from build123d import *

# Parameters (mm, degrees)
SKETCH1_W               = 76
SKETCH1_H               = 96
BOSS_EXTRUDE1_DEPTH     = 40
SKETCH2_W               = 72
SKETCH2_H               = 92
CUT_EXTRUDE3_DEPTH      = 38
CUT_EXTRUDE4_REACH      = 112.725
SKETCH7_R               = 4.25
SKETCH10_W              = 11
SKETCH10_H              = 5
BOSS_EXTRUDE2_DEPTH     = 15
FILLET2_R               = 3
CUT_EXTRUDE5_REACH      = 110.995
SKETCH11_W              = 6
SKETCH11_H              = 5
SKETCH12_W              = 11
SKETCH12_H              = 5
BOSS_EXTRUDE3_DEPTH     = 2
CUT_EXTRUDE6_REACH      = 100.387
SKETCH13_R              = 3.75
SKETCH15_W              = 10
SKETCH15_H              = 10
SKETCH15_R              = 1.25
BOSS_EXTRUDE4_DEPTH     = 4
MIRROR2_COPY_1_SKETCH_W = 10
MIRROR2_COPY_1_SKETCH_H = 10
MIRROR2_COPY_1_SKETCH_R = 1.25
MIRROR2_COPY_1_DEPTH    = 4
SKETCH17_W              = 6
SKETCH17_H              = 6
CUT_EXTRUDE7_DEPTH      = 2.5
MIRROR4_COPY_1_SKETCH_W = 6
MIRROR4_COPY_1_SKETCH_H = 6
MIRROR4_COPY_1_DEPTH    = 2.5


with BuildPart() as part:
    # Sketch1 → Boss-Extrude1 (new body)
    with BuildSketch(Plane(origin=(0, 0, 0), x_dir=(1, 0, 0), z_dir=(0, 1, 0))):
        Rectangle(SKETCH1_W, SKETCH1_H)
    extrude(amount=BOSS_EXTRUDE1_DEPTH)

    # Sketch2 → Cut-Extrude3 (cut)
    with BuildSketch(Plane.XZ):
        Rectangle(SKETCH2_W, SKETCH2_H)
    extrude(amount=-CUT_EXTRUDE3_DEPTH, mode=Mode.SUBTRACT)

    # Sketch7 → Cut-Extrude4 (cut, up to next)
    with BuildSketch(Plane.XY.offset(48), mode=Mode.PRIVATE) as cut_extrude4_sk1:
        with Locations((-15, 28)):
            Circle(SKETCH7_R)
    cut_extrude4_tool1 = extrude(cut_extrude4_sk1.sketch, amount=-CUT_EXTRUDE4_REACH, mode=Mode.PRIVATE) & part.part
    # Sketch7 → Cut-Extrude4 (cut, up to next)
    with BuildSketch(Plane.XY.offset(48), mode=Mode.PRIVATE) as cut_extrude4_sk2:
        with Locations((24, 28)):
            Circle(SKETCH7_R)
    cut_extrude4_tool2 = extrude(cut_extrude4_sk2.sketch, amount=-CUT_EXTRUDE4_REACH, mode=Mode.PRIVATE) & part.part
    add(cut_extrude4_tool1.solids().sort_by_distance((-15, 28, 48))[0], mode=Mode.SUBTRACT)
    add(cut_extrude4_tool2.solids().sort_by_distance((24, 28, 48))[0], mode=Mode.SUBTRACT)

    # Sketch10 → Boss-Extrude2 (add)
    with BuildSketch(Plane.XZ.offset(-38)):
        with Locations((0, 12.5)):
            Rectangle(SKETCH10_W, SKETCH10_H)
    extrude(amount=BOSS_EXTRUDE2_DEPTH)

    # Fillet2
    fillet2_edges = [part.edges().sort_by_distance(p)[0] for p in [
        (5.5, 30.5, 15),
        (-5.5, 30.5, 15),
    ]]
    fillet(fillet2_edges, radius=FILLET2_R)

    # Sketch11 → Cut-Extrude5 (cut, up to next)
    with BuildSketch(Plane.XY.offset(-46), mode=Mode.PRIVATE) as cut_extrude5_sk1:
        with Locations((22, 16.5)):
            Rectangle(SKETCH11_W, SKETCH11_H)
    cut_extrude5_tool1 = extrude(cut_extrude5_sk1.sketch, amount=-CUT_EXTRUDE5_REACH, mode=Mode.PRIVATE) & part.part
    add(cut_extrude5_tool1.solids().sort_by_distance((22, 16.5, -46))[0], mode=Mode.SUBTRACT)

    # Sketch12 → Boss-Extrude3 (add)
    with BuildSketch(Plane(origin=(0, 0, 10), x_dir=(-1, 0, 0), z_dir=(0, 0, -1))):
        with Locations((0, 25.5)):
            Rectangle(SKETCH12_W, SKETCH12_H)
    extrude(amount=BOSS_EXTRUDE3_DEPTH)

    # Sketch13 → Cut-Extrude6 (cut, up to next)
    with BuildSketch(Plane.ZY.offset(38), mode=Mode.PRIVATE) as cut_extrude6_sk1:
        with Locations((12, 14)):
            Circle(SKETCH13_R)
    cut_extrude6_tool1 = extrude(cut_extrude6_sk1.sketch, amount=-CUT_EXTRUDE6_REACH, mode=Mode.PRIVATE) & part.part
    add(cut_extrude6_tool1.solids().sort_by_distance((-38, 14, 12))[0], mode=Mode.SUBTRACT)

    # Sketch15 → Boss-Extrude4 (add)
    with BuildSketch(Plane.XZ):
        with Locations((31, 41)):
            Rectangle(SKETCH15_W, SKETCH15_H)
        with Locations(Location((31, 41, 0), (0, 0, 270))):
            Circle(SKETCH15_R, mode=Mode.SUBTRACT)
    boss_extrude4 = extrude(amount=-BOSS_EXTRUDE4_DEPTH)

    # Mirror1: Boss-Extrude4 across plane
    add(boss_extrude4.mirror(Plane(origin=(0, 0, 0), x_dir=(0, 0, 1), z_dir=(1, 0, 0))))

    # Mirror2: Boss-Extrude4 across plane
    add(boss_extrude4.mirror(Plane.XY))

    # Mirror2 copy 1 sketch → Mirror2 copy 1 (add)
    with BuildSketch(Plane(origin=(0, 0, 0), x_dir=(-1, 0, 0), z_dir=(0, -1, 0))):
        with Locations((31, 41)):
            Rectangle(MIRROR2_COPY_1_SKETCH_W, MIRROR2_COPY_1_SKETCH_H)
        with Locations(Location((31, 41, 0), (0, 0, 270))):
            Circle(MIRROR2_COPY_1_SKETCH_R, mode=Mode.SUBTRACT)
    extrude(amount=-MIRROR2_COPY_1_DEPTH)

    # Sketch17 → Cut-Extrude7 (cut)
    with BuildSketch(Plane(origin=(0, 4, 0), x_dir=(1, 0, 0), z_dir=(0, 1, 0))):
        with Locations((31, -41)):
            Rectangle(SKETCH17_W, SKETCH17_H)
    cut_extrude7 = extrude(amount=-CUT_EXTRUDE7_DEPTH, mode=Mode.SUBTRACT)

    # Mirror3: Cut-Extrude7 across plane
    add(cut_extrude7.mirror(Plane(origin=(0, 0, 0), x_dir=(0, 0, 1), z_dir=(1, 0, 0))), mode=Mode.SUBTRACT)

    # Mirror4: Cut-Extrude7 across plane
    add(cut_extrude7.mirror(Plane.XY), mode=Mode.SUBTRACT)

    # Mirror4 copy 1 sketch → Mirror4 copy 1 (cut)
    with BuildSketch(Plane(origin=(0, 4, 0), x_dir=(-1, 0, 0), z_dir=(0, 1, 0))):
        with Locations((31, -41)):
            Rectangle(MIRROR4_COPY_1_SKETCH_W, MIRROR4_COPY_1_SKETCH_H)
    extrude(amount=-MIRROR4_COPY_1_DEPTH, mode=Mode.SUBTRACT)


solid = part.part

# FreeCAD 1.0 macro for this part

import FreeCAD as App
import Part
import Sketcher
Q = App.Units.Quantity


def edges_at(feature, points):
    """Names of the edges that pass closest to the given points."""
    edges = feature.Shape.Edges
    near = lambda p: min(range(len(edges)), key=lambda i: edges[i].distToShape(Part.Vertex(*p))[0])
    return sorted({f"Edge{near(p) + 1}" for p in points})

doc = App.newDocument("Part")
params = doc.addObject("Spreadsheet::Sheet", "Params")
for row, (alias, value) in enumerate([
    ("sketch1_width", "76 mm"),
    ("sketch1_height", "96 mm"),
    ("pad1_length", "40 mm"),
    ("sketch2_width", "72 mm"),
    ("sketch2_height", "92 mm"),
    ("pocket1_length", "38 mm"),
    ("sketch3_diameter", "8.5 mm"),
    ("sketch4_diameter", "8.5 mm"),
    ("sketch5_width", "11 mm"),
    ("sketch5_height", "5 mm"),
    ("pad2_length", "15 mm"),
    ("fillet_radius", "3 mm"),
    ("sketch6_width", "6 mm"),
    ("sketch6_height", "5 mm"),
    ("sketch7_width", "11 mm"),
    ("sketch7_height", "5 mm"),
    ("pad3_length", "2 mm"),
    ("sketch8_diameter", "7.5 mm"),
    ("sketch9_diameter", "2.5 mm"),
    ("sketch9_width", "10 mm"),
    ("pad4_length", "4 mm"),
    ("sketch10_diameter", "2.5 mm"),
    ("sketch10_width", "10 mm"),
    ("pad5_length", "4 mm"),
    ("sketch11_width", "6 mm"),
    ("pocket6_length", "2.5 mm"),
    ("sketch12_width", "6 mm"),
    ("pocket7_length", "2.5 mm"),
], start=1):
    params.set(f"A{row}", alias)
    params.set(f"B{row}", "=" + value)
    params.setAlias(f"B{row}", alias)

body = doc.addObject("PartDesign::Body", "Body")

# Sketch on XZ plane
sketch1 = body.newObject("Sketcher::SketchObject", "Sketch")
sketch1.AttachmentSupport = (doc.getObject("XZ_Plane"), [""])
sketch1.MapMode = "FlatFace"
sketch1.addGeometry([
    Part.LineSegment(App.Vector(-38, -48, 0), App.Vector(-38, 48, 0)),
    Part.LineSegment(App.Vector(-38, 48, 0), App.Vector(38, 48, 0)),
    Part.LineSegment(App.Vector(38, 48, 0), App.Vector(38, -48, 0)),
    Part.LineSegment(App.Vector(38, -48, 0), App.Vector(-38, -48, 0)),
], False)
sketch1.addConstraint([
    Sketcher.Constraint("Coincident", 0, 2, 1, 1),
    Sketcher.Constraint("Coincident", 1, 2, 2, 1),
    Sketcher.Constraint("Coincident", 2, 2, 3, 1),
    Sketcher.Constraint("Coincident", 3, 2, 0, 1),
    Sketcher.Constraint("Vertical", 0),
    Sketcher.Constraint("Horizontal", 1),
    Sketcher.Constraint("Vertical", 2),
    Sketcher.Constraint("Horizontal", 3),
    Sketcher.Constraint("Symmetric", 0, 2, 2, 2, -1, 1),
    Sketcher.Constraint("DistanceX", 1, 1, 1, 2, Q("76 mm")),
    Sketcher.Constraint("DistanceY", 0, 1, 0, 2, Q("96 mm")),
])
sketch1.setExpression("Constraints[9]", "Params.sketch1_width")
sketch1.setExpression("Constraints[10]", "Params.sketch1_height")
pad1 = body.newObject("PartDesign::Pad", "Pad")
pad1.Profile = sketch1
pad1.setExpression("Length", "Params.pad1_length")
pad1.Reversed = True

# Sketch on XZ plane
sketch2 = body.newObject("Sketcher::SketchObject", "Sketch001")
sketch2.AttachmentSupport = (doc.getObject("XZ_Plane"), [""])
sketch2.MapMode = "FlatFace"
sketch2.addGeometry([
    Part.LineSegment(App.Vector(-36, 46, 0), App.Vector(-36, -46, 0)),
    Part.LineSegment(App.Vector(-36, -46, 0), App.Vector(36, -46, 0)),
    Part.LineSegment(App.Vector(36, -46, 0), App.Vector(36, 46, 0)),
    Part.LineSegment(App.Vector(36, 46, 0), App.Vector(-36, 46, 0)),
], False)
sketch2.addConstraint([
    Sketcher.Constraint("Coincident", 0, 2, 1, 1),
    Sketcher.Constraint("Coincident", 1, 2, 2, 1),
    Sketcher.Constraint("Coincident", 2, 2, 3, 1),
    Sketcher.Constraint("Coincident", 3, 2, 0, 1),
    Sketcher.Constraint("Vertical", 0),
    Sketcher.Constraint("Horizontal", 1),
    Sketcher.Constraint("Vertical", 2),
    Sketcher.Constraint("Horizontal", 3),
    Sketcher.Constraint("Symmetric", 0, 2, 2, 2, -1, 1),
    Sketcher.Constraint("DistanceX", 1, 1, 1, 2, Q("72 mm")),
    Sketcher.Constraint("DistanceY", 0, 2, 0, 1, Q("92 mm")),
])
sketch2.setExpression("Constraints[9]", "Params.sketch2_width")
sketch2.setExpression("Constraints[10]", "Params.sketch2_height")
pocket1 = body.newObject("PartDesign::Pocket", "Pocket")
pocket1.Profile = sketch2
pocket1.setExpression("Length", "Params.pocket1_length")

# Sketch on XY plane
sketch3 = body.newObject("Sketcher::SketchObject", "Sketch002")
sketch3.AttachmentSupport = (doc.getObject("XY_Plane"), [""])
sketch3.MapMode = "FlatFace"
sketch3.AttachmentOffset = App.Placement(App.Vector(0, 0, 48), App.Rotation())
sketch3.addGeometry(Part.Circle(App.Vector(-15, 28, 0), App.Vector(0, 0, 1), 4.2), False)
sketch3.addConstraint([
    Sketcher.Constraint("Diameter", 0, Q("8.5 mm")),
    Sketcher.Constraint("DistanceX", 0, 3, -1, 1, Q("15 mm")),
    Sketcher.Constraint("DistanceY", -1, 1, 0, 3, Q("28 mm")),
])
sketch3.setExpression("Constraints[0]", "Params.sketch3_diameter")
pocket2 = body.newObject("PartDesign::Pocket", "Pocket001")
pocket2.Profile = sketch3
pocket2.Type = "UpToFirst"

# Sketch on XY plane
sketch4 = body.newObject("Sketcher::SketchObject", "Sketch003")
sketch4.AttachmentSupport = (doc.getObject("XY_Plane"), [""])
sketch4.MapMode = "FlatFace"
sketch4.AttachmentOffset = App.Placement(App.Vector(0, 0, 48), App.Rotation())
sketch4.addGeometry(Part.Circle(App.Vector(24, 28, 0), App.Vector(0, 0, 1), 4.2), False)
sketch4.addConstraint([
    Sketcher.Constraint("Diameter", 0, Q("8.5 mm")),
    Sketcher.Constraint("DistanceX", -1, 1, 0, 3, Q("24 mm")),
    Sketcher.Constraint("DistanceY", -1, 1, 0, 3, Q("28 mm")),
])
sketch4.setExpression("Constraints[0]", "Params.sketch4_diameter")
pocket3 = body.newObject("PartDesign::Pocket", "Pocket002")
pocket3.Profile = sketch4
pocket3.Type = "UpToFirst"

# Sketch on XZ plane
sketch5 = body.newObject("Sketcher::SketchObject", "Sketch004")
sketch5.AttachmentSupport = (doc.getObject("XZ_Plane"), [""])
sketch5.MapMode = "FlatFace"
sketch5.AttachmentOffset = App.Placement(App.Vector(0, 0, -38), App.Rotation())
sketch5.addGeometry([
    Part.LineSegment(App.Vector(-6, 15, 0), App.Vector(-6, 10, 0)),
    Part.LineSegment(App.Vector(-6, 10, 0), App.Vector(6, 10, 0)),
    Part.LineSegment(App.Vector(6, 10, 0), App.Vector(6, 15, 0)),
    Part.LineSegment(App.Vector(6, 15, 0), App.Vector(-6, 15, 0)),
], False)
sketch5.addConstraint([
    Sketcher.Constraint("Coincident", 0, 2, 1, 1),
    Sketcher.Constraint("Coincident", 1, 2, 2, 1),
    Sketcher.Constraint("Coincident", 2, 2, 3, 1),
    Sketcher.Constraint("Coincident", 3, 2, 0, 1),
    Sketcher.Constraint("Vertical", 0),
    Sketcher.Constraint("Horizontal", 1),
    Sketcher.Constraint("Vertical", 2),
    Sketcher.Constraint("Horizontal", 3),
    Sketcher.Constraint("DistanceX", 1, 1, 1, 2, Q("11 mm")),
    Sketcher.Constraint("DistanceY", 0, 2, 0, 1, Q("5 mm")),
    Sketcher.Constraint("DistanceY", -1, 1, 0, 2, Q("10 mm")),
    Sketcher.Constraint("DistanceX", 0, 2, -1, 1, Q("5.5 mm")),
])
sketch5.setExpression("Constraints[8]", "Params.sketch5_width")
sketch5.setExpression("Constraints[9]", "Params.sketch5_height")
pad2 = body.newObject("PartDesign::Pad", "Pad001")
pad2.Profile = sketch5
pad2.setExpression("Length", "Params.pad2_length")
doc.recompute()

fillet = body.newObject("PartDesign::Fillet", "Fillet")
fillet.Base = (pad2, edges_at(pad2, [(5.5, 30.5, 15), (-5.5, 30.5, 15)]))
fillet.setExpression("Radius", "Params.fillet_radius")

# Sketch on XY plane
sketch6 = body.newObject("Sketcher::SketchObject", "Sketch005")
sketch6.AttachmentSupport = (doc.getObject("XY_Plane"), [""])
sketch6.MapMode = "FlatFace"
sketch6.AttachmentOffset = App.Placement(App.Vector(0, 0, -46), App.Rotation())
sketch6.addGeometry([
    Part.LineSegment(App.Vector(19, 19, 0), App.Vector(19, 14, 0)),
    Part.LineSegment(App.Vector(19, 14, 0), App.Vector(25, 14, 0)),
    Part.LineSegment(App.Vector(25, 14, 0), App.Vector(25, 19, 0)),
    Part.LineSegment(App.Vector(25, 19, 0), App.Vector(19, 19, 0)),
], False)
sketch6.addConstraint([
    Sketcher.Constraint("Coincident", 0, 2, 1, 1),
    Sketcher.Constraint("Coincident", 1, 2, 2, 1),
    Sketcher.Constraint("Coincident", 2, 2, 3, 1),
    Sketcher.Constraint("Coincident", 3, 2, 0, 1),
    Sketcher.Constraint("Vertical", 0),
    Sketcher.Constraint("Horizontal", 1),
    Sketcher.Constraint("Vertical", 2),
    Sketcher.Constraint("Horizontal", 3),
    Sketcher.Constraint("DistanceX", 1, 1, 1, 2, Q("6 mm")),
    Sketcher.Constraint("DistanceY", 0, 2, 0, 1, Q("5 mm")),
    Sketcher.Constraint("DistanceX", -1, 1, 0, 2, Q("19 mm")),
    Sketcher.Constraint("DistanceY", -1, 1, 0, 2, Q("14 mm")),
])
sketch6.setExpression("Constraints[8]", "Params.sketch6_width")
sketch6.setExpression("Constraints[9]", "Params.sketch6_height")
pocket4 = body.newObject("PartDesign::Pocket", "Pocket003")
pocket4.Profile = sketch6
pocket4.Type = "UpToFirst"

# Sketch on XY plane
sketch7 = body.newObject("Sketcher::SketchObject", "Sketch006")
sketch7.AttachmentSupport = (doc.getObject("XY_Plane"), [""])
sketch7.MapMode = "FlatFace"
sketch7.AttachmentOffset = App.Placement(App.Vector(0, 0, 10), App.Rotation())
sketch7.addGeometry([
    Part.LineSegment(App.Vector(6, 28, 0), App.Vector(6, 23, 0)),
    Part.LineSegment(App.Vector(6, 23, 0), App.Vector(-6, 23, 0)),
    Part.LineSegment(App.Vector(-6, 23, 0), App.Vector(-6, 28, 0)),
    Part.LineSegment(App.Vector(-6, 28, 0), App.Vector(6, 28, 0)),
], False)
sketch7.addConstraint([
    Sketcher.Constraint("Coincident", 0, 2, 1, 1),
    Sketcher.Constraint("Coincident", 1, 2, 2, 1),
    Sketcher.Constraint("Coincident", 2, 2, 3, 1),
    Sketcher.Constraint("Coincident", 3, 2, 0, 1),
    Sketcher.Constraint("Vertical", 0),
    Sketcher.Constraint("Horizontal", 1),
    Sketcher.Constraint("Vertical", 2),
    Sketcher.Constraint("Horizontal", 3),
    Sketcher.Constraint("DistanceX", 1, 2, 1, 1, Q("11 mm")),
    Sketcher.Constraint("DistanceY", 0, 2, 0, 1, Q("5 mm")),
    Sketcher.Constraint("DistanceY", -1, 1, 0, 2, Q("23 mm")),
    Sketcher.Constraint("DistanceX", -1, 1, 0, 2, Q("5.5 mm")),
])
sketch7.setExpression("Constraints[8]", "Params.sketch7_width")
sketch7.setExpression("Constraints[9]", "Params.sketch7_height")
pad3 = body.newObject("PartDesign::Pad", "Pad002")
pad3.Profile = sketch7
pad3.setExpression("Length", "Params.pad3_length")
pad3.Reversed = True

# Sketch on YZ plane
sketch8 = body.newObject("Sketcher::SketchObject", "Sketch007")
sketch8.AttachmentSupport = (doc.getObject("YZ_Plane"), [""])
sketch8.MapMode = "FlatFace"
sketch8.AttachmentOffset = App.Placement(App.Vector(0, 0, -38), App.Rotation())
sketch8.addGeometry(Part.Circle(App.Vector(14, 12, 0), App.Vector(0, 0, 1), 3.8), False)
sketch8.addConstraint([
    Sketcher.Constraint("Diameter", 0, Q("7.5 mm")),
    Sketcher.Constraint("DistanceX", -1, 1, 0, 3, Q("14 mm")),
    Sketcher.Constraint("DistanceY", -1, 1, 0, 3, Q("12 mm")),
])
sketch8.setExpression("Constraints[0]", "Params.sketch8_diameter")
pocket5 = body.newObject("PartDesign::Pocket", "Pocket004")
pocket5.Profile = sketch8
pocket5.Type = "UpToFirst"
pocket5.Reversed = True

# Sketch on XZ plane
sketch9 = body.newObject("Sketcher::SketchObject", "Sketch008")
sketch9.AttachmentSupport = (doc.getObject("XZ_Plane"), [""])
sketch9.MapMode = "FlatFace"
sketch9.addGeometry([
    Part.LineSegment(App.Vector(26, 46, 0), App.Vector(26, 36, 0)),  # 0
    Part.LineSegment(App.Vector(26, 36, 0), App.Vector(36, 36, 0)),  # 1
    Part.LineSegment(App.Vector(36, 36, 0), App.Vector(36, 46, 0)),  # 2
    Part.LineSegment(App.Vector(36, 46, 0), App.Vector(26, 46, 0)),  # 3
    Part.Circle(App.Vector(31, 41, 0), App.Vector(0, 0, 1), 1.2),  # 4
], False)
sketch9.addConstraint([
    Sketcher.Constraint("Coincident", 0, 2, 1, 1),
    Sketcher.Constraint("Coincident", 1, 2, 2, 1),
    Sketcher.Constraint("Coincident", 2, 2, 3, 1),
    Sketcher.Constraint("Coincident", 3, 2, 0, 1),
    Sketcher.Constraint("Vertical", 0),
    Sketcher.Constraint("Horizontal", 1),
    Sketcher.Constraint("Vertical", 2),
    Sketcher.Constraint("Horizontal", 3),
    Sketcher.Constraint("Equal", 3, 0),
    Sketcher.Constraint("Diameter", 4, Q("2.5 mm")),
    Sketcher.Constraint("DistanceX", 1, 1, 1, 2, Q("10 mm")),
    Sketcher.Constraint("DistanceX", -1, 1, 4, 3, Q("31 mm")),
    Sketcher.Constraint("DistanceY", -1, 1, 4, 3, Q("41 mm")),
    Sketcher.Constraint("DistanceX", -1, 1, 0, 2, Q("26 mm")),
    Sketcher.Constraint("DistanceY", -1, 1, 0, 2, Q("36 mm")),
])
sketch9.setExpression("Constraints[9]", "Params.sketch9_diameter")
sketch9.setExpression("Constraints[10]", "Params.sketch9_width")
pad4 = body.newObject("PartDesign::Pad", "Pad003")
pad4.Profile = sketch9
pad4.setExpression("Length", "Params.pad4_length")
pad4.Reversed = True
doc.recompute()

mirrored = body.newObject("PartDesign::Mirrored", "Mirrored")
mirrored.Originals = [pad4]
mirrored.MirrorPlane = (doc.getObject("YZ_Plane"), [""])
body.Tip = mirrored
doc.recompute()

mirrored2 = body.newObject("PartDesign::Mirrored", "Mirrored001")
mirrored2.Originals = [pad4]
mirrored2.MirrorPlane = (doc.getObject("XY_Plane"), [""])
body.Tip = mirrored2

# Sketch on XZ plane
sketch10 = body.newObject("Sketcher::SketchObject", "Sketch009")
sketch10.AttachmentSupport = (doc.getObject("XZ_Plane"), [""])
sketch10.MapMode = "FlatFace"
sketch10.addGeometry([
    Part.LineSegment(App.Vector(-26, -46, 0), App.Vector(-26, -36, 0)),  # 0
    Part.LineSegment(App.Vector(-26, -36, 0), App.Vector(-36, -36, 0)),  # 1
    Part.LineSegment(App.Vector(-36, -36, 0), App.Vector(-36, -46, 0)),  # 2
    Part.LineSegment(App.Vector(-36, -46, 0), App.Vector(-26, -46, 0)),  # 3
    Part.Circle(App.Vector(-31, -41, 0), App.Vector(0, 0, 1), 1.2),  # 4
], False)
sketch10.addConstraint([
    Sketcher.Constraint("Coincident", 0, 2, 1, 1),
    Sketcher.Constraint("Coincident", 1, 2, 2, 1),
    Sketcher.Constraint("Coincident", 2, 2, 3, 1),
    Sketcher.Constraint("Coincident", 3, 2, 0, 1),
    Sketcher.Constraint("Vertical", 0),
    Sketcher.Constraint("Horizontal", 1),
    Sketcher.Constraint("Vertical", 2),
    Sketcher.Constraint("Horizontal", 3),
    Sketcher.Constraint("Equal", 3, 0),
    Sketcher.Constraint("Diameter", 4, Q("2.5 mm")),
    Sketcher.Constraint("DistanceX", 1, 2, 1, 1, Q("10 mm")),
    Sketcher.Constraint("DistanceX", 4, 3, -1, 1, Q("31 mm")),
    Sketcher.Constraint("DistanceY", 4, 3, -1, 1, Q("41 mm")),
    Sketcher.Constraint("DistanceX", 0, 2, -1, 1, Q("26 mm")),
    Sketcher.Constraint("DistanceY", 0, 2, -1, 1, Q("36 mm")),
])
sketch10.setExpression("Constraints[9]", "Params.sketch10_diameter")
sketch10.setExpression("Constraints[10]", "Params.sketch10_width")
pad5 = body.newObject("PartDesign::Pad", "Pad004")
pad5.Profile = sketch10
pad5.setExpression("Length", "Params.pad5_length")
pad5.Reversed = True

# Sketch on XZ plane
sketch11 = body.newObject("Sketcher::SketchObject", "Sketch010")
sketch11.AttachmentSupport = (doc.getObject("XZ_Plane"), [""])
sketch11.MapMode = "FlatFace"
sketch11.AttachmentOffset = App.Placement(App.Vector(0, 0, -4), App.Rotation())
sketch11.addGeometry([
    Part.LineSegment(App.Vector(28, 38, 0), App.Vector(28, 44, 0)),
    Part.LineSegment(App.Vector(28, 44, 0), App.Vector(34, 44, 0)),
    Part.LineSegment(App.Vector(34, 44, 0), App.Vector(34, 38, 0)),
    Part.LineSegment(App.Vector(34, 38, 0), App.Vector(28, 38, 0)),
], False)
sketch11.addConstraint([
    Sketcher.Constraint("Coincident", 0, 2, 1, 1),
    Sketcher.Constraint("Coincident", 1, 2, 2, 1),
    Sketcher.Constraint("Coincident", 2, 2, 3, 1),
    Sketcher.Constraint("Coincident", 3, 2, 0, 1),
    Sketcher.Constraint("Vertical", 0),
    Sketcher.Constraint("Horizontal", 1),
    Sketcher.Constraint("Vertical", 2),
    Sketcher.Constraint("Horizontal", 3),
    Sketcher.Constraint("Equal", 3, 0),
    Sketcher.Constraint("DistanceX", 1, 1, 1, 2, Q("6 mm")),
    Sketcher.Constraint("DistanceX", -1, 1, 0, 2, Q("28 mm")),
    Sketcher.Constraint("DistanceY", -1, 1, 0, 2, Q("44 mm")),
])
sketch11.setExpression("Constraints[9]", "Params.sketch11_width")
pocket6 = body.newObject("PartDesign::Pocket", "Pocket005")
pocket6.Profile = sketch11
pocket6.setExpression("Length", "Params.pocket6_length")
pocket6.Reversed = True
doc.recompute()

mirrored3 = body.newObject("PartDesign::Mirrored", "Mirrored002")
mirrored3.Originals = [pocket6]
mirrored3.MirrorPlane = (doc.getObject("YZ_Plane"), [""])
body.Tip = mirrored3
doc.recompute()

mirrored4 = body.newObject("PartDesign::Mirrored", "Mirrored003")
mirrored4.Originals = [pocket6]
mirrored4.MirrorPlane = (doc.getObject("XY_Plane"), [""])
body.Tip = mirrored4

# Sketch on XZ plane
sketch12 = body.newObject("Sketcher::SketchObject", "Sketch011")
sketch12.AttachmentSupport = (doc.getObject("XZ_Plane"), [""])
sketch12.MapMode = "FlatFace"
sketch12.AttachmentOffset = App.Placement(App.Vector(0, 0, -4), App.Rotation())
sketch12.addGeometry([
    Part.LineSegment(App.Vector(-28, -38, 0), App.Vector(-28, -44, 0)),
    Part.LineSegment(App.Vector(-28, -44, 0), App.Vector(-34, -44, 0)),
    Part.LineSegment(App.Vector(-34, -44, 0), App.Vector(-34, -38, 0)),
    Part.LineSegment(App.Vector(-34, -38, 0), App.Vector(-28, -38, 0)),
], False)
sketch12.addConstraint([
    Sketcher.Constraint("Coincident", 0, 2, 1, 1),
    Sketcher.Constraint("Coincident", 1, 2, 2, 1),
    Sketcher.Constraint("Coincident", 2, 2, 3, 1),
    Sketcher.Constraint("Coincident", 3, 2, 0, 1),
    Sketcher.Constraint("Vertical", 0),
    Sketcher.Constraint("Horizontal", 1),
    Sketcher.Constraint("Vertical", 2),
    Sketcher.Constraint("Horizontal", 3),
    Sketcher.Constraint("Equal", 3, 0),
    Sketcher.Constraint("DistanceX", 1, 2, 1, 1, Q("6 mm")),
    Sketcher.Constraint("DistanceX", 0, 2, -1, 1, Q("28 mm")),
    Sketcher.Constraint("DistanceY", 0, 2, -1, 1, Q("44 mm")),
])
sketch12.setExpression("Constraints[9]", "Params.sketch12_width")
pocket7 = body.newObject("PartDesign::Pocket", "Pocket006")
pocket7.Profile = sketch12
pocket7.setExpression("Length", "Params.pocket7_length")
pocket7.Reversed = True

doc.recompute()
